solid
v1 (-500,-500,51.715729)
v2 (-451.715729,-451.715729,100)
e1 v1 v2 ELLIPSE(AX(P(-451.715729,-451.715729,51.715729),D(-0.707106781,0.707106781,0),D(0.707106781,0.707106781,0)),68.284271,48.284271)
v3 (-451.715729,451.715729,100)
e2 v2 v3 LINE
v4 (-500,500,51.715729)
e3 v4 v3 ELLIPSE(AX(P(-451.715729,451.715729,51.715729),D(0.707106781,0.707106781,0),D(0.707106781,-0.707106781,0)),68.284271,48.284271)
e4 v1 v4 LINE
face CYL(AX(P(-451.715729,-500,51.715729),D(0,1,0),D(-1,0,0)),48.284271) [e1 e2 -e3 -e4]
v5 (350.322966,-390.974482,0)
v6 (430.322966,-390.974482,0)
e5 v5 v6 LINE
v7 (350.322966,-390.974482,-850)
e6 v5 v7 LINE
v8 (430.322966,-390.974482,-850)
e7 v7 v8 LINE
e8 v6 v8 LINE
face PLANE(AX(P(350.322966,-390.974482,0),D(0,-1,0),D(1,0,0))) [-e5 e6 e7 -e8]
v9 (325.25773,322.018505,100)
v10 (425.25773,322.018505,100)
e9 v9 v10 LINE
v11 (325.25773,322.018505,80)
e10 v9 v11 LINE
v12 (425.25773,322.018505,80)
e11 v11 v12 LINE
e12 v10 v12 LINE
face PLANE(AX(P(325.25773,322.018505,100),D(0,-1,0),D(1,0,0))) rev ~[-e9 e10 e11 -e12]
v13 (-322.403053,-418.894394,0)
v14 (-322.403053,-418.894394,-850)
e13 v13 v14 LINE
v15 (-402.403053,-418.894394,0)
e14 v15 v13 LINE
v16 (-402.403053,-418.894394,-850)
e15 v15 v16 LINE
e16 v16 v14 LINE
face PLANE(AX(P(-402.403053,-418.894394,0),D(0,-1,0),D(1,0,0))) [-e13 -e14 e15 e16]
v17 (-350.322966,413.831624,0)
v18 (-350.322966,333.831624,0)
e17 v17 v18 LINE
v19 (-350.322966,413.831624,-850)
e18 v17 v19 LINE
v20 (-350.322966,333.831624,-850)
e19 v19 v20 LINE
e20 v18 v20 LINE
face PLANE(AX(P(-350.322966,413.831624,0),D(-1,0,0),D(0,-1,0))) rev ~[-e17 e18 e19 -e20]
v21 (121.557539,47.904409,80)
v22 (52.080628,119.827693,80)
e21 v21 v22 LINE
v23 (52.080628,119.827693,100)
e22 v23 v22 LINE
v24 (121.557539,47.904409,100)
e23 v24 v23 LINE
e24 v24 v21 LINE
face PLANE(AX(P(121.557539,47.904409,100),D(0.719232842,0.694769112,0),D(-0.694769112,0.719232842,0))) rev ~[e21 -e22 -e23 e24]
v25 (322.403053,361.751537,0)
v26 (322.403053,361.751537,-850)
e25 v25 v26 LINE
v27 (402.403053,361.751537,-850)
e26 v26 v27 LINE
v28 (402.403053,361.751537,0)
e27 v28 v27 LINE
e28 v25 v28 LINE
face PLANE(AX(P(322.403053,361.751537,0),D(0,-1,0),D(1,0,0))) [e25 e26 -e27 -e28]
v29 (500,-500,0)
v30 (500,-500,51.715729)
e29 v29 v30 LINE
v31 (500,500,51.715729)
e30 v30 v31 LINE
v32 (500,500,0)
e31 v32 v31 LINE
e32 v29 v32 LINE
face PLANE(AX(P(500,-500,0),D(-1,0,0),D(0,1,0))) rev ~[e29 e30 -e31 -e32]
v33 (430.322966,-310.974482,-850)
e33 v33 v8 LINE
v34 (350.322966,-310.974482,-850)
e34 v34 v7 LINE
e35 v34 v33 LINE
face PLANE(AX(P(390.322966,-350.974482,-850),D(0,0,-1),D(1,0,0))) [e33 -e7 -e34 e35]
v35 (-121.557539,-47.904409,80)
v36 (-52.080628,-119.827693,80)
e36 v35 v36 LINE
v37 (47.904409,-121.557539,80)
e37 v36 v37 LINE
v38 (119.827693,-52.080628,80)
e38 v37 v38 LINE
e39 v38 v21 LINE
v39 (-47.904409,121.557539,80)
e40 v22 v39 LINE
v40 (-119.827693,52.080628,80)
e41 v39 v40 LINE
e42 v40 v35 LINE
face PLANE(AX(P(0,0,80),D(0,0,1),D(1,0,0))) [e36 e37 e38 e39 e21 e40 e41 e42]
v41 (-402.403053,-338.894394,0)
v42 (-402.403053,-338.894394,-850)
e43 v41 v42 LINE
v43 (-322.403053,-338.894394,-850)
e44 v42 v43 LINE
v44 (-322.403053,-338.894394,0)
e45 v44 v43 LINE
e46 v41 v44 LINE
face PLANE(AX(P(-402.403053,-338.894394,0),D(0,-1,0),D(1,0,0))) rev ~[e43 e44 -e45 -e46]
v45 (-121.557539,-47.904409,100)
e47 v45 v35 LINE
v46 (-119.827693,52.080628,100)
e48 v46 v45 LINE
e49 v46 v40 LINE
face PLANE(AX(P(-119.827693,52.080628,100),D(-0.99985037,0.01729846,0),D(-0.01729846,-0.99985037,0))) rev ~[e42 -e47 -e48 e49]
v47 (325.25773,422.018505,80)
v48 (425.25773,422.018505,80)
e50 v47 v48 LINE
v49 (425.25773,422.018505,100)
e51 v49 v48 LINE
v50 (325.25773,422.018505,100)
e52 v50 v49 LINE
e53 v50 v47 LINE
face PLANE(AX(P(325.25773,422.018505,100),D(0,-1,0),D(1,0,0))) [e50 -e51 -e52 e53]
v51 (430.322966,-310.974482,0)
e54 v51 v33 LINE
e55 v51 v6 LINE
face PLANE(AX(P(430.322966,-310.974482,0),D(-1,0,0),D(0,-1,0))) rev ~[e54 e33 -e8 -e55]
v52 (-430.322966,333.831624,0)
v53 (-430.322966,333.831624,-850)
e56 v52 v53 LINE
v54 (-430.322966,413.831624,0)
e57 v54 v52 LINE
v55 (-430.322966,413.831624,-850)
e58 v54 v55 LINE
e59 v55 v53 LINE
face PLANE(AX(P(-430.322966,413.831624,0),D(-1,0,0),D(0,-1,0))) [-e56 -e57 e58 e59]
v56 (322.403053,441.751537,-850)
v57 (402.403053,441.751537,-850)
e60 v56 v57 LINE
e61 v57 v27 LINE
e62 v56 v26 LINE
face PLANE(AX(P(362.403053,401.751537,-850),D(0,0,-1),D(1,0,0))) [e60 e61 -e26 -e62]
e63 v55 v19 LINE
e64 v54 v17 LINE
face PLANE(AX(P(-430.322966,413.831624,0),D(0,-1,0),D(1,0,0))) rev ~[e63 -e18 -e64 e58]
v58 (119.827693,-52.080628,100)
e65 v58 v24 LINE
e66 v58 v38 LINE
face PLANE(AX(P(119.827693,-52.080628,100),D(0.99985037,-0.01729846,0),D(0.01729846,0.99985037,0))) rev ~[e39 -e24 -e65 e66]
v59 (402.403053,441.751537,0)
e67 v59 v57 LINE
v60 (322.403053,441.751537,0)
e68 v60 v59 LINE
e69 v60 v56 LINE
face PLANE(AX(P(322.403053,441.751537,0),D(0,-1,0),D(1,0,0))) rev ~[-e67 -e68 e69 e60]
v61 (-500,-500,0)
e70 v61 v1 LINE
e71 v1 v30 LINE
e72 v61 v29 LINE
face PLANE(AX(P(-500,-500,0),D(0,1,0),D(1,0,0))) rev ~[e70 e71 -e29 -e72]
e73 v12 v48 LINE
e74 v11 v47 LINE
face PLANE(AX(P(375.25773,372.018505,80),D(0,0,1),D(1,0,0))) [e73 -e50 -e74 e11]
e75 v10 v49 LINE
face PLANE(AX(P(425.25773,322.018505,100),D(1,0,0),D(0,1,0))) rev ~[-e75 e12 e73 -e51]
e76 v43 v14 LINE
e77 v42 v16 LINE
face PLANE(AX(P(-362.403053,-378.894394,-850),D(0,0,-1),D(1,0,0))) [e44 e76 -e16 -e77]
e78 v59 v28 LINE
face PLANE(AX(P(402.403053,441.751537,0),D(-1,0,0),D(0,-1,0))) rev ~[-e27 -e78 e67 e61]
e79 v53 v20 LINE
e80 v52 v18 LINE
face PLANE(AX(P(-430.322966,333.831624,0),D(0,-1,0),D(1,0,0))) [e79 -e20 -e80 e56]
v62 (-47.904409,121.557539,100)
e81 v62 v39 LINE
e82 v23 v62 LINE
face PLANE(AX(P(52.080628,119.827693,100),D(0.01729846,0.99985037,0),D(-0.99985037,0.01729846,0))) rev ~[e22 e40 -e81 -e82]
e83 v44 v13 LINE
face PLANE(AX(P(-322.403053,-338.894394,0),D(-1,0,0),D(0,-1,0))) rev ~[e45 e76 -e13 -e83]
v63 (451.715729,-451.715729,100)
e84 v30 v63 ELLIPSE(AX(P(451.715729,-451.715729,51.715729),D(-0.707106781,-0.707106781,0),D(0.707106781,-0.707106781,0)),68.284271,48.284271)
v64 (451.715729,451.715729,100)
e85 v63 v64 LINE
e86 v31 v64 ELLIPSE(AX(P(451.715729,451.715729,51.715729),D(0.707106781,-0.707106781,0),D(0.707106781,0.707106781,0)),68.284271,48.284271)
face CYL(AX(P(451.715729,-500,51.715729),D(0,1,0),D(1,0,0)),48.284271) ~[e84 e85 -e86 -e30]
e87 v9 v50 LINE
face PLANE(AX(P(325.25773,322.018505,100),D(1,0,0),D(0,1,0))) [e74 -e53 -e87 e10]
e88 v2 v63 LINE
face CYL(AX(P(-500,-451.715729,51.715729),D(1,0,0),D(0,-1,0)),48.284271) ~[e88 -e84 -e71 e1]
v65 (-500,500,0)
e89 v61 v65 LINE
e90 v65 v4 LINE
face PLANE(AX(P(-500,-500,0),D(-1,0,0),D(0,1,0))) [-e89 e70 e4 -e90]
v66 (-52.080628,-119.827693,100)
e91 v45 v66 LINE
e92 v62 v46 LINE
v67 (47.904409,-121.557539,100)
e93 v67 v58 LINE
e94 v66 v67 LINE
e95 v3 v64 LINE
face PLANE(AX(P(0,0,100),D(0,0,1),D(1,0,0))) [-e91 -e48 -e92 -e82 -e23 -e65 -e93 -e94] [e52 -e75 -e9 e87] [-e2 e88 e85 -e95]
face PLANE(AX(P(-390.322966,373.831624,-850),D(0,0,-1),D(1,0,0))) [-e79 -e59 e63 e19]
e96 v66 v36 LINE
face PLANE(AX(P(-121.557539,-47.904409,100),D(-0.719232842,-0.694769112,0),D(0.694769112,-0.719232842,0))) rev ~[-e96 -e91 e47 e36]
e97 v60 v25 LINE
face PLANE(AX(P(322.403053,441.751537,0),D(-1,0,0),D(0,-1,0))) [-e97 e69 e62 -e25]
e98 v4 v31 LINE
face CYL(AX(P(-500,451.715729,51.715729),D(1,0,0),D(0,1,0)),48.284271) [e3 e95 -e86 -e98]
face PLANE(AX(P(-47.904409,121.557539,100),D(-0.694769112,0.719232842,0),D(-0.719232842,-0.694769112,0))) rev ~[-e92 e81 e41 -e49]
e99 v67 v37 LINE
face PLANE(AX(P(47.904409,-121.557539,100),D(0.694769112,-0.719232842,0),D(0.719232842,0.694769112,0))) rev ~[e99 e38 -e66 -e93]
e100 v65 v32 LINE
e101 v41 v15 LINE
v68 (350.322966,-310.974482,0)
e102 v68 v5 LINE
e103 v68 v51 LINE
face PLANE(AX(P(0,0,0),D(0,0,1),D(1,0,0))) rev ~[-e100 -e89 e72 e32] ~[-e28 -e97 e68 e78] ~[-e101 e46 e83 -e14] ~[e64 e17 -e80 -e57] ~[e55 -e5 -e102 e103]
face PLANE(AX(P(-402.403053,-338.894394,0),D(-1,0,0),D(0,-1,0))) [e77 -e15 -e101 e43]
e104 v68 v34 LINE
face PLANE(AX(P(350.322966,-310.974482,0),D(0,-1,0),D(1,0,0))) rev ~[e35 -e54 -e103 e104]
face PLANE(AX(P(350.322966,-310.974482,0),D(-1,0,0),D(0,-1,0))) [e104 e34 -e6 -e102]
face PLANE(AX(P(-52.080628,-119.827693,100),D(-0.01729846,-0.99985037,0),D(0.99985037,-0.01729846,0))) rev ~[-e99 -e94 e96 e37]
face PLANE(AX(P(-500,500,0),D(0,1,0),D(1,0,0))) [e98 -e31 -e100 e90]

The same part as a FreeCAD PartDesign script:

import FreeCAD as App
import Part
import Sketcher
Q = App.Units.Quantity


def edges_at(feature, points):
    """Names of the edges that pass closest to the given points."""
    edges = feature.Shape.Edges
    near = lambda p: min(range(len(edges)), key=lambda i: edges[i].distToShape(Part.Vertex(*p))[0])
    return sorted({f"Edge{near(p) + 1}" for p in points})


def add_polygon(sketch, points):
    """Adds a closed chain of lines whose ends are joined by coincident constraints."""
    first, n = sketch.GeometryCount, len(points)
    for a, b in zip(points, points[1:] + points[:1]):
        sketch.addGeometry(Part.LineSegment(App.Vector(*a, 0), App.Vector(*b, 0)), False)
    for i in range(n):
        sketch.addConstraint(Sketcher.Constraint("Coincident", first + i, 2, first + (i + 1) % n, 1))

doc = App.newDocument("Part")
params = doc.addObject("Spreadsheet::Sheet", "Params")
for row, (alias, value) in enumerate([
    ("sketch1_width", "1000 mm"),
    ("pad1_length", "100 mm"),
    ("fillet_radius", "48.284271 mm"),
    ("sketch2_length", "100 mm"),
    ("pocket1_length", "20 mm"),
    ("sketch3_width", "100 mm"),
    ("pocket2_length", "20 mm"),
    ("sketch4_width", "80 mm"),
    ("pad2_length", "850 mm"),
], start=1):
    params.set(f"A{row}", alias)
    params.set(f"B{row}", "=" + value)
    params.setAlias(f"B{row}", alias)

body = doc.addObject("PartDesign::Body", "Body")

sketch1 = body.newObject("Sketcher::SketchObject", "Sketch")
sketch1.AttachmentSupport = (doc.getObject("XY_Plane"), [""])
sketch1.MapMode = "FlatFace"
add_polygon(sketch1, [(-500, 500), (-500, -500), (500, -500), (500, 500)])
sketch1.addConstraint(Sketcher.Constraint("Vertical", 0))
sketch1.addConstraint(Sketcher.Constraint("Horizontal", 1))
sketch1.addConstraint(Sketcher.Constraint("Vertical", 2))
sketch1.addConstraint(Sketcher.Constraint("Horizontal", 3))
sketch1.addConstraint(Sketcher.Constraint("Symmetric", 0, 2, 2, 2, -1, 1))
sketch1.addConstraint(Sketcher.Constraint("Equal", 3, 0))
sketch1.addConstraint(Sketcher.Constraint("DistanceX", 1, 1, 1, 2, Q("1000 mm")))
sketch1.setExpression("Constraints[10]", "Params.sketch1_width")
pad1 = body.newObject("PartDesign::Pad", "Pad")
pad1.Profile = sketch1
pad1.setExpression("Length", "Params.pad1_length")
doc.recompute()

fillet = body.newObject("PartDesign::Fillet", "Fillet")
fillet.Base = (pad1, edges_at(pad1, [
    (0, 500, 100),
    (-500, 0, 100),
    (0, -500, 100),
    (500, 0, 100),
]))
fillet.setExpression("Radius", "Params.fillet_radius")

sketch2 = body.newObject("Sketcher::SketchObject", "Sketch001")
sketch2.AttachmentSupport = (doc.getObject("XY_Plane"), [""])
sketch2.MapMode = "FlatFace"
sketch2.AttachmentOffset = App.Placement(App.Vector(0, 0, 100), App.Rotation())
add_polygon(sketch2, [(-48, 122), (-120, 52), (-122, -48), (-52, -120), (48, -122), (120, -52), (122, 48), (52, 120)])
sketch2.addConstraint(Sketcher.Constraint("Symmetric", 0, 2, 4, 2, -1, 1))
sketch2.addConstraint(Sketcher.Constraint("Symmetric", 1, 2, 5, 2, -1, 1))
sketch2.addConstraint(Sketcher.Constraint("Symmetric", 2, 2, 6, 2, -1, 1))
sketch2.addConstraint(Sketcher.Constraint("Symmetric", 3, 2, 7, 2, -1, 1))
sketch2.addConstraint(Sketcher.Constraint("Perpendicular", 0, 2))
sketch2.addConstraint(Sketcher.Constraint("Perpendicular", 1, 3))
sketch2.addConstraint(Sketcher.Constraint("Equal", 0, 1))
sketch2.addConstraint(Sketcher.Constraint("Equal", 1, 2))
sketch2.addConstraint(Sketcher.Constraint("Equal", 2, 3))
sketch2.addConstraint(Sketcher.Constraint("Distance", 0, Q("100 mm")))
sketch2.addConstraint(Sketcher.Constraint("DistanceX", 0, 2, 3, 2, Q("167.732102 mm")))
sketch2.addConstraint(Sketcher.Constraint("DistanceX", 1, 2, -1, 1, Q("121.557539 mm")))
sketch2.setExpression("Constraints[17]", "Params.sketch2_length")
pocket1 = body.newObject("PartDesign::Pocket", "Pocket")
pocket1.Profile = sketch2
pocket1.setExpression("Length", "Params.pocket1_length")

sketch3 = body.newObject("Sketcher::SketchObject", "Sketch002")
sketch3.AttachmentSupport = (doc.getObject("XY_Plane"), [""])
sketch3.MapMode = "FlatFace"
sketch3.AttachmentOffset = App.Placement(App.Vector(0, 0, 100), App.Rotation())
add_polygon(sketch3, [(325, 422), (325, 322), (425, 322), (425, 422)])
sketch3.addConstraint(Sketcher.Constraint("Vertical", 0))
sketch3.addConstraint(Sketcher.Constraint("Horizontal", 1))
sketch3.addConstraint(Sketcher.Constraint("Vertical", 2))
sketch3.addConstraint(Sketcher.Constraint("Horizontal", 3))
sketch3.addConstraint(Sketcher.Constraint("Equal", 3, 0))
sketch3.addConstraint(Sketcher.Constraint("DistanceX", 1, 1, 1, 2, Q("100 mm")))
sketch3.addConstraint(Sketcher.Constraint("DistanceX", -1, 1, 0, 2, Q("325.25773 mm")))
sketch3.addConstraint(Sketcher.Constraint("DistanceY", -1, 1, 0, 2, Q("322.018505 mm")))
sketch3.setExpression("Constraints[9]", "Params.sketch3_width")
pocket2 = body.newObject("PartDesign::Pocket", "Pocket001")
pocket2.Profile = sketch3
pocket2.setExpression("Length", "Params.pocket2_length")

sketch4 = body.newObject("Sketcher::SketchObject", "Sketch003")
sketch4.AttachmentSupport = (doc.getObject("XY_Plane"), [""])
sketch4.MapMode = "FlatFace"
add_polygon(sketch4, [(-402, -419), (-402, -339), (-322, -339), (-322, -419)])
add_polygon(sketch4, [(350, -391), (350, -311), (430, -311), (430, -391)])
add_polygon(sketch4, [(322, 362), (322, 442), (402, 442), (402, 362)])
add_polygon(sketch4, [(-430, 334), (-430, 414), (-350, 414), (-350, 334)])
sketch4.addConstraint(Sketcher.Constraint("Vertical", 0))
sketch4.addConstraint(Sketcher.Constraint("Horizontal", 1))
sketch4.addConstraint(Sketcher.Constraint("Vertical", 2))
sketch4.addConstraint(Sketcher.Constraint("Horizontal", 3))
sketch4.addConstraint(Sketcher.Constraint("Vertical", 4))
sketch4.addConstraint(Sketcher.Constraint("Horizontal", 5))
sketch4.addConstraint(Sketcher.Constraint("Vertical", 6))
sketch4.addConstraint(Sketcher.Constraint("Horizontal", 7))
sketch4.addConstraint(Sketcher.Constraint("Vertical", 8))
sketch4.addConstraint(Sketcher.Constraint("Horizontal", 9))
sketch4.addConstraint(Sketcher.Constraint("Vertical", 10))
sketch4.addConstraint(Sketcher.Constraint("Horizontal", 11))
sketch4.addConstraint(Sketcher.Constraint("Vertical", 12))
sketch4.addConstraint(Sketcher.Constraint("Horizontal", 13))
sketch4.addConstraint(Sketcher.Constraint("Vertical", 14))
sketch4.addConstraint(Sketcher.Constraint("Horizontal", 15))
sketch4.addConstraint(Sketcher.Constraint("Equal", 3, 5))
sketch4.addConstraint(Sketcher.Constraint("Equal", 7, 9))
sketch4.addConstraint(Sketcher.Constraint("Equal", 11, 13))
sketch4.addConstraint(Sketcher.Constraint("Equal", 15, 0))
sketch4.addConstraint(Sketcher.Constraint("Equal", 2, 4))
sketch4.addConstraint(Sketcher.Constraint("Equal", 6, 8))
sketch4.addConstraint(Sketcher.Constraint("Equal", 10, 12))
sketch4.addConstraint(Sketcher.Constraint("DistanceX", 1, 1, 1, 2, Q("80 mm")))
sketch4.addConstraint(Sketcher.Constraint("DistanceY", 4, 2, -1, 1, Q("310.974482 mm")))
sketch4.addConstraint(Sketcher.Constraint("DistanceX", 1, 2, 4, 2, Q("672.726019 mm")))
sketch4.addConstraint(Sketcher.Constraint("DistanceY", 1, 2, 4, 2, Q("27.919912 mm")))
sketch4.addConstraint(Sketcher.Constraint("DistanceY", 4, 2, 8, 2, Q("752.726019 mm")))
sketch4.addConstraint(Sketcher.Constraint("DistanceY", 0, 2, 12, 2, Q("752.726018 mm")))
sketch4.addConstraint(Sketcher.Constraint("DistanceX", 12, 2, 8, 2, Q("752.726019 mm")))
sketch4.addConstraint(Sketcher.Constraint("DistanceX", 0, 2, -1, 1, Q("402.403053 mm")))
sketch4.addConstraint(Sketcher.Constraint("DistanceX", -1, 1, 8, 2, Q("322.403053 mm")))
sketch4.setExpression("Constraints[39]", "Params.sketch4_width")
pad2 = body.newObject("PartDesign::Pad", "Pad001")
pad2.Profile = sketch4
pad2.setExpression("Length", "Params.pad2_length")
pad2.Reversed = True

doc.recompute()
